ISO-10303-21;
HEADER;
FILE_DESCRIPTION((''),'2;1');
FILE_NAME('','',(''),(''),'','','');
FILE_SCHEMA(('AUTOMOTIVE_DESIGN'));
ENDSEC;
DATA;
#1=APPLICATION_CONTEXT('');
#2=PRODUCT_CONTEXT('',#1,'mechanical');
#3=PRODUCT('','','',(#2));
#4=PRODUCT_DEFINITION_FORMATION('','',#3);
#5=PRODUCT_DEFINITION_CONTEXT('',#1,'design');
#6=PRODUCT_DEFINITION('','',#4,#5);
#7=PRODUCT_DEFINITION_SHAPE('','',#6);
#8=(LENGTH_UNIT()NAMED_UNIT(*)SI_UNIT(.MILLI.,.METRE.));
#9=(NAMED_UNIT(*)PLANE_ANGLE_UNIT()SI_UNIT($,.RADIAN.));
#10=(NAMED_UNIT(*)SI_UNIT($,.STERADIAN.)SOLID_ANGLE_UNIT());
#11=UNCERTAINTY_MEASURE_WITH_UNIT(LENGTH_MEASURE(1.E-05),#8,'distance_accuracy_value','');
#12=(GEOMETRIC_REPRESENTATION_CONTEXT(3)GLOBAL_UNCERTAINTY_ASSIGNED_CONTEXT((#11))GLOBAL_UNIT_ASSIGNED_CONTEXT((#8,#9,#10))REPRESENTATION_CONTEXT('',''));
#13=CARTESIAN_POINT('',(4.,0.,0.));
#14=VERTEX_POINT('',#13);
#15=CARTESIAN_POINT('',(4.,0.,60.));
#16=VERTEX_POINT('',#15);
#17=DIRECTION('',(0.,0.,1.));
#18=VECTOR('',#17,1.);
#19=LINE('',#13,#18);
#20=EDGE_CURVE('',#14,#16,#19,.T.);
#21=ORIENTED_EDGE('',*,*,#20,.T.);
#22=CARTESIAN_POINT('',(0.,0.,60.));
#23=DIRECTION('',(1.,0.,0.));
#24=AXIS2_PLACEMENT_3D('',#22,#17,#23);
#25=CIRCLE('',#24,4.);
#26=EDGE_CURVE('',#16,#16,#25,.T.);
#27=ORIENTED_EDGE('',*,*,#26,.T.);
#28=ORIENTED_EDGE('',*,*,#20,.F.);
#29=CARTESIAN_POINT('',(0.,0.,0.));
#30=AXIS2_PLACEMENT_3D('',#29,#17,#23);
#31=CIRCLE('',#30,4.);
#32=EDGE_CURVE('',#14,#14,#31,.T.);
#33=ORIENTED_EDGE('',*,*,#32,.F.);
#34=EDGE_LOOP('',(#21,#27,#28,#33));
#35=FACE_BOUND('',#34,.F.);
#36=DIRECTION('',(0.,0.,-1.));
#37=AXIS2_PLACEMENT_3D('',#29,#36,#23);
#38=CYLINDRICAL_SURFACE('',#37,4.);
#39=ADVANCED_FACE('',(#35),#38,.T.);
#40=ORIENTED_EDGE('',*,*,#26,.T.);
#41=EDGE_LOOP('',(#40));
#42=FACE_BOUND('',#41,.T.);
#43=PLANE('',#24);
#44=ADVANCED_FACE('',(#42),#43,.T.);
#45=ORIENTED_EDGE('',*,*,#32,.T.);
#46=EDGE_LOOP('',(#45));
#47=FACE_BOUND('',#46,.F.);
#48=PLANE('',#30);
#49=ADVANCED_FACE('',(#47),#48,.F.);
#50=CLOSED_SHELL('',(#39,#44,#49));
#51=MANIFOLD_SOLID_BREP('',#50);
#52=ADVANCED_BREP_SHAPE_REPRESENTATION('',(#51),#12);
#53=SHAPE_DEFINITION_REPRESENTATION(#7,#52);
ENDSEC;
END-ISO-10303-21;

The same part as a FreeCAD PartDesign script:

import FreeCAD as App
import Part
import Sketcher

doc = App.newDocument("Part")
body = doc.addObject("PartDesign::Body", "Body")

sketch1 = body.newObject("Sketcher::SketchObject", "Sketch")
sketch1.AttachmentSupport = (doc.getObject("XY_Plane"), [""])
sketch1.MapMode = "FlatFace"
sketch1.addGeometry(Part.Circle(App.Vector(0, 0, 0), App.Vector(0, 0, 1), 4), False)
sketch1.addConstraint([
    Sketcher.Constraint("Coincident", 0, 3, -1, 1),
    Sketcher.Constraint("Diameter", 0, 8.0),
])
pad1 = body.newObject("PartDesign::Pad", "Pad")
pad1.Profile = sketch1
pad1.Length = 60

doc.recompute()
